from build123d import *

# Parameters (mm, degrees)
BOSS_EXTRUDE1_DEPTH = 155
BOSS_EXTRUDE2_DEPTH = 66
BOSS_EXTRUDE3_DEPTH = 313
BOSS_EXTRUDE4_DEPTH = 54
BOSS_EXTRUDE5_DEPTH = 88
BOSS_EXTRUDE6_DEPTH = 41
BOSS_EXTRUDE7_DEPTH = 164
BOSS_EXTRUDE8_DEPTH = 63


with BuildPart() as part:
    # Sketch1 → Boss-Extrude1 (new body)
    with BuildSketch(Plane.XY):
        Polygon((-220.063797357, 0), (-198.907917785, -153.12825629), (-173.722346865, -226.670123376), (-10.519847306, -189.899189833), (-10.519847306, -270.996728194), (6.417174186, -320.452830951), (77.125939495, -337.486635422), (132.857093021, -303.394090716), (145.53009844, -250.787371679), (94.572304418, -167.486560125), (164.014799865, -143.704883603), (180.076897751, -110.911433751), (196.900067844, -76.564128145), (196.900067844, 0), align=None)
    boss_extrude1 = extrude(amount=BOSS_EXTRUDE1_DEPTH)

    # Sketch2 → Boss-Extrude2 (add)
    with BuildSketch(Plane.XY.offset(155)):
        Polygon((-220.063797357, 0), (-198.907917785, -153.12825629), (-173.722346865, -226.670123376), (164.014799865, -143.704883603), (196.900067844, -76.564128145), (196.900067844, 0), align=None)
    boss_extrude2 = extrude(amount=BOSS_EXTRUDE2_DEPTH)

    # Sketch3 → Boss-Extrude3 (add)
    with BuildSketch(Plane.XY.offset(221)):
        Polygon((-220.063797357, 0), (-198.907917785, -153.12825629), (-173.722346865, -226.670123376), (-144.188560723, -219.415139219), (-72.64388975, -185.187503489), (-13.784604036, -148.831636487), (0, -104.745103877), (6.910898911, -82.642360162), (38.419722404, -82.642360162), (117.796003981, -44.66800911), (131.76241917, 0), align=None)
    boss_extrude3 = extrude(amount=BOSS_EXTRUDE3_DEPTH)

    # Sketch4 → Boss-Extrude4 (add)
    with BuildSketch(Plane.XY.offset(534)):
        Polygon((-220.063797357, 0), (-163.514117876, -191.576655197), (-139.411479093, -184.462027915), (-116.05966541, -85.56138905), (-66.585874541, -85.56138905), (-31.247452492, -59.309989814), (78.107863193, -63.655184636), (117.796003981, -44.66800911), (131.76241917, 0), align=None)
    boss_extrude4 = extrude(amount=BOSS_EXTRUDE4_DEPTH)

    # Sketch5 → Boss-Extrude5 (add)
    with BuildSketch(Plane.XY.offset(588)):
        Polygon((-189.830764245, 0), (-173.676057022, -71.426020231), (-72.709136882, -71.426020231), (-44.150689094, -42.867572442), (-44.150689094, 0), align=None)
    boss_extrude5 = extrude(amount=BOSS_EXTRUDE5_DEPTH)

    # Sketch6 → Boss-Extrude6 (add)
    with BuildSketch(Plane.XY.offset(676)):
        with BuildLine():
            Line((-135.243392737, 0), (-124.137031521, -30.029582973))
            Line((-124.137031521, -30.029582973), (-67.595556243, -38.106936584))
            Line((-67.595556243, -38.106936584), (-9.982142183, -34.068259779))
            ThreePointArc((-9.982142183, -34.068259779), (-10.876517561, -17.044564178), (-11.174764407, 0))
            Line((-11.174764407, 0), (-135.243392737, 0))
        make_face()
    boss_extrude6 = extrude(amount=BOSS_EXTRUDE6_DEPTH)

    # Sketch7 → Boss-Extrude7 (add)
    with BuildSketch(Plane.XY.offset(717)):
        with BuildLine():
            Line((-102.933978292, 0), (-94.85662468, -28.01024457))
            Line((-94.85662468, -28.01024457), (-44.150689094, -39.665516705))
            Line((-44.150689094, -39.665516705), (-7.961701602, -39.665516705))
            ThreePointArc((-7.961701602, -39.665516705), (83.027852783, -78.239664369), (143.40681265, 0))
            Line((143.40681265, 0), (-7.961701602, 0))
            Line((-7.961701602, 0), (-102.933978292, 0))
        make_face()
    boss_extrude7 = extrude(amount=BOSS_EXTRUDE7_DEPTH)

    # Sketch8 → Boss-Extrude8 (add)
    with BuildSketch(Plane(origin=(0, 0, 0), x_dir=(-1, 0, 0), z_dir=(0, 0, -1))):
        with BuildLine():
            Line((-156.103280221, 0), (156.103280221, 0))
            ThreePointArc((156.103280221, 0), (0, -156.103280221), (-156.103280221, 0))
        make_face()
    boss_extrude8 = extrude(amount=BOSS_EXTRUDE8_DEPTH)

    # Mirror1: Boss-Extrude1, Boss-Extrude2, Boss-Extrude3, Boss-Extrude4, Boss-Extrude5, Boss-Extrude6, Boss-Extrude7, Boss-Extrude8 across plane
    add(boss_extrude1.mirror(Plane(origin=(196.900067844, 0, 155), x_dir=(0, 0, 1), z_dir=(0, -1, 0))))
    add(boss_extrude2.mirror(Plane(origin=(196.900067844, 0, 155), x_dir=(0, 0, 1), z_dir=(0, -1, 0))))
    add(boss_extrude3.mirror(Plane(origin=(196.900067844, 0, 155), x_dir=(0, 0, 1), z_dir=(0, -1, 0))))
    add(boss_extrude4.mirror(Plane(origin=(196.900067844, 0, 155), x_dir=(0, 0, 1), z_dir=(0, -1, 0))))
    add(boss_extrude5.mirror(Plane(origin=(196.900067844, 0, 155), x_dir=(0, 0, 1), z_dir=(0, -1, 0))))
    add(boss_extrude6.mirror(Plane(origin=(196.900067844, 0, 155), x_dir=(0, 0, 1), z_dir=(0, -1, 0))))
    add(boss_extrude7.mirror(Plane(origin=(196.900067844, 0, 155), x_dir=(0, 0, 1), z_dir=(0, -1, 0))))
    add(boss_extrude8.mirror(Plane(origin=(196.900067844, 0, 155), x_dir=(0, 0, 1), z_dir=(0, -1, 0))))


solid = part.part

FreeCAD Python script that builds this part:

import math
import FreeCAD as App
import Part
import Sketcher

V = App.Vector
Q = App.Units.Quantity

doc = App.newDocument("Part")
body = doc.addObject("PartDesign::Body", "Body")

# Sketch on XY plane
sketch1 = doc.addObject("Sketcher::SketchObject", "Sketch")
body.addObject(sketch1)
sketch1.AttachmentSupport = (doc.XY_Plane, [""])
sketch1.MapMode = "FlatFace"
sketch1.addGeometry([
    Part.LineSegment(V(-220.063797, 0, 0), V(-198.907918, -153.128256, 0)),  # 0
    Part.LineSegment(V(-198.907918, -153.128256, 0), V(-173.722347, -226.670123, 0)),  # 1
    Part.LineSegment(V(-173.722347, -226.670123, 0), V(-10.519847, -189.89919, 0)),  # 2
    Part.LineSegment(V(-10.519847, -189.89919, 0), V(-10.519847, -270.996728, 0)),  # 3
    Part.LineSegment(V(-10.519847, -270.996728, 0), V(6.417174, -320.452831, 0)),  # 4
    Part.LineSegment(V(6.417174, -320.452831, 0), V(77.125939, -337.486635, 0)),  # 5
    Part.LineSegment(V(77.125939, -337.486635, 0), V(132.857093, -303.394091, 0)),  # 6
    Part.LineSegment(V(132.857093, -303.394091, 0), V(145.530098, -250.787372, 0)),  # 7
    Part.LineSegment(V(145.530098, -250.787372, 0), V(94.572304, -167.48656, 0)),  # 8
    Part.LineSegment(V(94.572304, -167.48656, 0), V(164.0148, -143.704884, 0)),  # 9
    Part.LineSegment(V(164.0148, -143.704884, 0), V(180.076898, -110.911434, 0)),  # 10
    Part.LineSegment(V(180.076898, -110.911434, 0), V(196.900068, -76.564128, 0)),  # 11
    Part.LineSegment(V(196.900068, -76.564128, 0), V(196.900068, 0, 0)),  # 12
    Part.LineSegment(V(196.900068, 0, 0), V(-220.063797, 0, 0)),  # 13
], False)
sketch1.addConstraint([
    Sketcher.Constraint("Coincident", 0, 2, 1, 1),
    Sketcher.Constraint("Coincident", 1, 2, 2, 1),
    Sketcher.Constraint("Coincident", 2, 2, 3, 1),
    Sketcher.Constraint("Coincident", 3, 2, 4, 1),
    Sketcher.Constraint("Coincident", 4, 2, 5, 1),
    Sketcher.Constraint("Coincident", 5, 2, 6, 1),
    Sketcher.Constraint("Coincident", 6, 2, 7, 1),
    Sketcher.Constraint("Coincident", 7, 2, 8, 1),
    Sketcher.Constraint("Coincident", 8, 2, 9, 1),
    Sketcher.Constraint("Coincident", 9, 2, 10, 1),
    Sketcher.Constraint("Coincident", 10, 2, 11, 1),
    Sketcher.Constraint("Coincident", 11, 2, 12, 1),
    Sketcher.Constraint("Coincident", 12, 2, 13, 1),
    Sketcher.Constraint("Coincident", 13, 2, 0, 1),
    Sketcher.Constraint("Vertical", 3),
    Sketcher.Constraint("Vertical", 12),
    Sketcher.Constraint("Horizontal", 13),
    Sketcher.Constraint("PointOnObject", 12, 2, -1),
    Sketcher.Constraint("Distance", 11, Q("38.245999 mm")),
    Sketcher.Constraint("DistanceY", 3, 2, 3, 1, Q("81.097538 mm")),
    Sketcher.Constraint("DistanceY", 12, 1, 12, 2, Q("76.564128 mm")),
    Sketcher.Constraint("DistanceX", -1, 1, 7, 2, Q("145.530098 mm")),
    Sketcher.Constraint("DistanceX", -1, 1, 9, 2, Q("164.0148 mm")),
    Sketcher.Constraint("DistanceX", 1, 2, 2, 2, Q("163.2025 mm")),
    Sketcher.Constraint("DistanceY", 6, 2, 2, 2, Q("113.494901 mm")),
    Sketcher.Constraint("DistanceX", 7, 2, 10, 2, Q("34.546799 mm")),
    Sketcher.Constraint("DistanceX", 13, 2, 8, 2, Q("314.636102 mm")),
    Sketcher.Constraint("Distance", 1, Q("77.734929 mm")),
    Sketcher.Constraint("Distance", 4, Q("52.275891 mm")),
    Sketcher.Constraint("Distance", 5, Q("72.731561 mm")),
    Sketcher.Constraint("Distance", 7, Q("54.111662 mm")),
    Sketcher.Constraint("Distance", 8, Q("97.651021 mm")),
    Sketcher.Constraint("Distance", 10, Q("36.515768 mm")),
    Sketcher.Constraint("DistanceX", 13, 2, 13, 1, Q("416.963865 mm")),
    Sketcher.Constraint("DistanceY", 2, 2, -1, 1, Q("189.89919 mm")),
    Sketcher.Constraint("DistanceY", 4, 2, -1, 1, Q("320.452831 mm")),
    Sketcher.Constraint("DistanceX", -1, 1, 5, 2, Q("77.125939 mm")),
    Sketcher.Constraint("DistanceY", 7, 2, -1, 1, Q("250.787372 mm")),
    Sketcher.Constraint("DistanceY", 8, 2, -1, 1, Q("167.48656 mm")),
    Sketcher.Constraint("DistanceX", 0, 2, 1, 2, Q("25.185571 mm")),
    Sketcher.Constraint("DistanceY", 3, 2, 0, 2, Q("117.868472 mm")),
    Sketcher.Constraint("DistanceY", 5, 2, 0, 2, Q("184.358379 mm")),
])
pad1 = doc.addObject("PartDesign::Pad", "Pad")
body.addObject(pad1)
pad1.Profile = sketch1
pad1.Length = 155

# Sketch on XY plane
sketch2 = doc.addObject("Sketcher::SketchObject", "Sketch001")
body.addObject(sketch2)
sketch2.AttachmentSupport = (doc.XY_Plane, [""])
sketch2.MapMode = "FlatFace"
sketch2.AttachmentOffset = App.Placement(V(0, 0, 155), App.Rotation())
sketch2.addGeometry([
    Part.LineSegment(V(-220, 0, 0), V(-199, -153, 0)),  # 0
    Part.LineSegment(V(-199, -153, 0), V(-174, -227, 0)),  # 1
    Part.LineSegment(V(-174, -227, 0), V(164, -144, 0)),  # 2
    Part.LineSegment(V(164, -144, 0), V(197, -77, 0)),  # 3
    Part.LineSegment(V(197, -77, 0), V(197, 0, 0)),  # 4
    Part.LineSegment(V(197, 0, 0), V(-220, 0, 0)),  # 5
], False)
sketch2.addConstraint([
    Sketcher.Constraint("Coincident", 0, 2, 1, 1),
    Sketcher.Constraint("Coincident", 1, 2, 2, 1),
    Sketcher.Constraint("Coincident", 2, 2, 3, 1),
    Sketcher.Constraint("Coincident", 3, 2, 4, 1),
    Sketcher.Constraint("Coincident", 4, 2, 5, 1),
    Sketcher.Constraint("Coincident", 5, 2, 0, 1),
    Sketcher.Constraint("Vertical", 4),
    Sketcher.Constraint("Horizontal", 5),
    Sketcher.Constraint("PointOnObject", 4, 2, -1),
    Sketcher.Constraint("DistanceY", 4, 1, 4, 2, Q("76.564128 mm")),
    Sketcher.Constraint("DistanceX", -1, 1, 2, 2, Q("164.0148 mm")),
    Sketcher.Constraint("Distance", 1, Q("77.734929 mm")),
    Sketcher.Constraint("DistanceX", 5, 2, 5, 1, Q("416.963865 mm")),
    Sketcher.Constraint("DistanceX", 0, 2, 1, 2, Q("25.185571 mm")),
    Sketcher.Constraint("DistanceY", 1, 2, 2, 2, Q("82.96524 mm")),
    Sketcher.Constraint("DistanceY", 0, 2, 3, 2, Q("76.564128 mm")),
    Sketcher.Constraint("DistanceX", 5, 2, 0, 2, Q("21.15588 mm")),
    Sketcher.Constraint("Distance", 2, Q("347.778106 mm")),
])
pad2 = doc.addObject("PartDesign::Pad", "Pad001")
body.addObject(pad2)
pad2.Profile = sketch2
pad2.Length = 66

# Sketch on XY plane
sketch3 = doc.addObject("Sketcher::SketchObject", "Sketch002")
body.addObject(sketch3)
sketch3.AttachmentSupport = (doc.XY_Plane, [""])
sketch3.MapMode = "FlatFace"
sketch3.AttachmentOffset = App.Placement(V(0, 0, 221), App.Rotation())
sketch3.addGeometry([
    Part.LineSegment(V(-220, 0, 0), V(-199, -153, 0)),  # 0
    Part.LineSegment(V(-199, -153, 0), V(-174, -227, 0)),  # 1
    Part.LineSegment(V(-174, -227, 0), V(-144, -219, 0)),  # 2
    Part.LineSegment(V(-144, -219, 0), V(-73, -185, 0)),  # 3
    Part.LineSegment(V(-73, -185, 0), V(-14, -149, 0)),  # 4
    Part.LineSegment(V(-14, -149, 0), V(0, -105, 0)),  # 5
    Part.LineSegment(V(0, -105, 0), V(7, -83, 0)),  # 6
    Part.LineSegment(V(7, -83, 0), V(38, -83, 0)),  # 7
    Part.LineSegment(V(38, -83, 0), V(118, -45, 0)),  # 8
    Part.LineSegment(V(118, -45, 0), V(132, 0, 0)),  # 9
    Part.LineSegment(V(132, 0, 0), V(-220, 0, 0)),  # 10
], False)
sketch3.addConstraint([
    Sketcher.Constraint("Coincident", 0, 2, 1, 1),
    Sketcher.Constraint("Coincident", 1, 2, 2, 1),
    Sketcher.Constraint("Coincident", 2, 2, 3, 1),
    Sketcher.Constraint("Coincident", 3, 2, 4, 1),
    Sketcher.Constraint("Coincident", 4, 2, 5, 1),
    Sketcher.Constraint("Coincident", 5, 2, 6, 1),
    Sketcher.Constraint("Coincident", 6, 2, 7, 1),
    Sketcher.Constraint("Coincident", 7, 2, 8, 1),
    Sketcher.Constraint("Coincident", 8, 2, 9, 1),
    Sketcher.Constraint("Coincident", 9, 2, 10, 1),
    Sketcher.Constraint("Coincident", 10, 2, 0, 1),
    Sketcher.Constraint("Horizontal", 7),
    Sketcher.Constraint("Horizontal", 10),
    Sketcher.Constraint("PointOnObject", 5, 2, -2),
    Sketcher.Constraint("PointOnObject", 9, 2, -1),
    Sketcher.Constraint("Parallel", 5, 6),
    Sketcher.Constraint("Parallel", 3, 8),
    Sketcher.Constraint("Parallel", 6, 9),
    Sketcher.Constraint("Distance", 3, Q("79.310598 mm")),
    Sketcher.Constraint("DistanceX", -1, 1, 6, 2, Q("6.910899 mm")),
    Sketcher.Constraint("DistanceY", 3, 2, 5, 2, Q("80.4424 mm")),
    Sketcher.Constraint("Distance", 1, Q("77.734929 mm")),
    Sketcher.Constraint("Distance", 2, Q("30.411829 mm")),
    Sketcher.Constraint("Distance", 4, Q("69.182112 mm")),
    Sketcher.Constraint("DistanceX", 7, 1, 7, 2, Q("31.508823 mm")),
    Sketcher.Constraint("DistanceX", 10, 2, 10, 1, Q("351.826217 mm")),
    Sketcher.Constraint("DistanceX", 2, 2, -1, 1, Q("144.188561 mm")),
    Sketcher.Constraint("DistanceY", 2, 2, -1, 1, Q("219.415139 mm")),
    Sketcher.Constraint("DistanceX", 3, 2, -1, 1, Q("72.64389 mm")),
    Sketcher.Constraint("DistanceY", 6, 2, -1, 1, Q("82.64236 mm")),
    Sketcher.Constraint("DistanceY", 8, 2, -1, 1, Q("44.668009 mm")),
    Sketcher.Constraint("DistanceX", 0, 2, 1, 2, Q("25.185571 mm")),
    Sketcher.Constraint("DistanceY", 1, 2, 3, 2, Q("41.48262 mm")),
])
pad3 = doc.addObject("PartDesign::Pad", "Pad002")
body.addObject(pad3)
pad3.Profile = sketch3
pad3.Length = 313

# Sketch on XY plane
sketch4 = doc.addObject("Sketcher::SketchObject", "Sketch003")
body.addObject(sketch4)
sketch4.AttachmentSupport = (doc.XY_Plane, [""])
sketch4.MapMode = "FlatFace"
sketch4.AttachmentOffset = App.Placement(V(0, 0, 534), App.Rotation())
sketch4.addGeometry([
    Part.LineSegment(V(-220.063797, 0, 0), V(-163.514118, -191.576655, 0)),  # 0
    Part.LineSegment(V(-163.514118, -191.576655, 0), V(-139.411479, -184.462028, 0)),  # 1
    Part.LineSegment(V(-139.411479, -184.462028, 0), V(-116.059665, -85.561389, 0)),  # 2
    Part.LineSegment(V(-116.059665, -85.561389, 0), V(-66.585875, -85.561389, 0)),  # 3
    Part.LineSegment(V(-66.585875, -85.561389, 0), V(-31.247452, -59.30999, 0)),  # 4
    Part.LineSegment(V(-31.247452, -59.30999, 0), V(78.107863, -63.655185, 0)),  # 5
    Part.LineSegment(V(78.107863, -63.655185, 0), V(117.796004, -44.668009, 0)),  # 6
    Part.LineSegment(V(117.796004, -44.668009, 0), V(131.762419, 0, 0)),  # 7
    Part.LineSegment(V(131.762419, 0, 0), V(-220.063797, 0, 0)),  # 8
], False)
sketch4.addConstraint([
    Sketcher.Constraint("Coincident", 0, 2, 1, 1),
    Sketcher.Constraint("Coincident", 1, 2, 2, 1),
    Sketcher.Constraint("Coincident", 2, 2, 3, 1),
    Sketcher.Constraint("Coincident", 3, 2, 4, 1),
    Sketcher.Constraint("Coincident", 4, 2, 5, 1),
    Sketcher.Constraint("Coincident", 5, 2, 6, 1),
    Sketcher.Constraint("Coincident", 6, 2, 7, 1),
    Sketcher.Constraint("Coincident", 7, 2, 8, 1),
    Sketcher.Constraint("Coincident", 8, 2, 0, 1),
    Sketcher.Constraint("Horizontal", 3),
    Sketcher.Constraint("Horizontal", 8),
    Sketcher.Constraint("PointOnObject", 7, 2, -1),
    Sketcher.Constraint("Perpendicular", 0, 1),
    Sketcher.Constraint("DistanceX", 3, 1, 3, 2, Q("49.473791 mm")),
    Sketcher.Constraint("DistanceY", 3, 2, 4, 2, Q("26.251399 mm")),
    Sketcher.Constraint("Distance", 1, Q("25.13076 mm")),
    Sketcher.Constraint("Distance", 4, Q("44.02204 mm")),
    Sketcher.Constraint("Distance", 5, Q("109.441609 mm")),
    Sketcher.Constraint("Distance", 6, Q("43.996152 mm")),
    Sketcher.Constraint("DistanceX", 8, 2, 8, 1, Q("351.826217 mm")),
    Sketcher.Constraint("DistanceX", 1, 2, -1, 1, Q("139.411479 mm")),
    Sketcher.Constraint("DistanceY", 2, 2, -1, 1, Q("85.561389 mm")),
    Sketcher.Constraint("DistanceY", 6, 2, -1, 1, Q("44.668009 mm")),
    Sketcher.Constraint("DistanceX", -1, 1, 7, 2, Q("131.762419 mm")),
    Sketcher.Constraint("DistanceX", 0, 2, 1, 2, Q("24.102639 mm")),
    Sketcher.Constraint("DistanceX", 2, 2, 5, 2, Q("194.167529 mm")),
    Sketcher.Constraint("DistanceX", 0, 2, 5, 2, Q("241.621981 mm")),
])
pad4 = doc.addObject("PartDesign::Pad", "Pad003")
body.addObject(pad4)
pad4.Profile = sketch4
pad4.Length = 54

# Sketch on XY plane
sketch5 = doc.addObject("Sketcher::SketchObject", "Sketch004")
body.addObject(sketch5)
sketch5.AttachmentSupport = (doc.XY_Plane, [""])
sketch5.MapMode = "FlatFace"
sketch5.AttachmentOffset = App.Placement(V(0, 0, 588), App.Rotation())
sketch5.addGeometry([
    Part.LineSegment(V(-190, 0, 0), V(-174, -71, 0)),  # 0
    Part.LineSegment(V(-174, -71, 0), V(-73, -71, 0)),  # 1
    Part.LineSegment(V(-73, -71, 0), V(-44, -43, 0)),  # 2
    Part.LineSegment(V(-44, -43, 0), V(-44, 0, 0)),  # 3
    Part.LineSegment(V(-44, 0, 0), V(-190, 0, 0)),  # 4
], False)
sketch5.addConstraint([
    Sketcher.Constraint("Coincident", 0, 2, 1, 1),
    Sketcher.Constraint("Coincident", 1, 2, 2, 1),
    Sketcher.Constraint("Coincident", 2, 2, 3, 1),
    Sketcher.Constraint("Coincident", 3, 2, 4, 1),
    Sketcher.Constraint("Coincident", 4, 2, 0, 1),
    Sketcher.Constraint("Horizontal", 1),
    Sketcher.Constraint("Vertical", 3),
    Sketcher.Constraint("Horizontal", 4),
    Sketcher.Constraint("PointOnObject", 3, 2, -1),
    Sketcher.Constraint("Angle", 2, Q("45 deg")),
    Sketcher.Constraint("DistanceX", 1, 1, 1, 2, Q("100.96692 mm")),
    Sketcher.Constraint("DistanceX", 4, 2, 4, 1, Q("145.680075 mm")),
    Sketcher.Constraint("DistanceY", 3, 1, 3, 2, Q("42.867572 mm")),
    Sketcher.Constraint("DistanceY", 0, 2, -1, 1, Q("71.42602 mm")),
    Sketcher.Constraint("DistanceX", 2, 2, -1, 1, Q("44.150689 mm")),
])
pad5 = doc.addObject("PartDesign::Pad", "Pad004")
body.addObject(pad5)
pad5.Profile = sketch5
pad5.Length = 88

# Sketch on XY plane
sketch6 = doc.addObject("Sketcher::SketchObject", "Sketch005")
body.addObject(sketch6)
sketch6.AttachmentSupport = (doc.XY_Plane, [""])
sketch6.MapMode = "FlatFace"
sketch6.AttachmentOffset = App.Placement(V(0, 0, 676), App.Rotation())
sketch6.addGeometry([
    Part.LineSegment(V(-135, 0, 0), V(-124, -30, 0)),  # 0
    Part.LineSegment(V(-124, -30, 0), V(-68, -38, 0)),  # 1
    Part.LineSegment(V(-68, -38, 0), V(-10, -34, 0)),  # 2
    Part.ArcOfCircle(Part.Circle(V(476, 0, 0), V(0, 0, 1), 487), math.radians(-180), math.radians(-175.99)),  # 3
    Part.LineSegment(V(-11, 0, 0), V(-135, 0, 0)),  # 4
], False)
sketch6.addConstraint([
    Sketcher.Constraint("Coincident", 0, 2, 1, 1),
    Sketcher.Constraint("Coincident", 1, 2, 2, 1),
    Sketcher.Constraint("Coincident", 2, 2, 3, 2),
    Sketcher.Constraint("Coincident", 3, 1, 4, 1),
    Sketcher.Constraint("Coincident", 4, 2, 0, 1),
    Sketcher.Constraint("Horizontal", 4),
    Sketcher.Constraint("PointOnObject", 3, 3, -1),
    Sketcher.Constraint("PointOnObject", 4, 2, -1),
    Sketcher.Constraint("Radius", 3, Q("487.190599 mm")),
    Sketcher.Constraint("DistanceX", 4, 2, 4, 1, Q("124.068628 mm")),
    Sketcher.Constraint("DistanceX", 0, 2, -1, 1, Q("124.137032 mm")),
    Sketcher.Constraint("DistanceY", 2, 2, -1, 1, Q("34.06826 mm")),
    Sketcher.Constraint("DistanceX", 1, 2, 3, 3, Q("543.611391 mm")),
    Sketcher.Constraint("DistanceX", 0, 2, 2, 2, Q("114.154889 mm")),
    Sketcher.Constraint("Distance", 0, Q("32.017606 mm")),
    Sketcher.Constraint("Distance", 1, Q("57.115515 mm")),
])
pad6 = doc.addObject("PartDesign::Pad", "Pad005")
body.addObject(pad6)
pad6.Profile = sketch6
pad6.Length = 41

# Sketch on XY plane
sketch7 = doc.addObject("Sketcher::SketchObject", "Sketch006")
body.addObject(sketch7)
sketch7.AttachmentSupport = (doc.XY_Plane, [""])
sketch7.MapMode = "FlatFace"
sketch7.AttachmentOffset = App.Placement(V(0, 0, 717), App.Rotation())
sketch7.addGeometry([
    Part.LineSegment(V(-103, 0, 0), V(-95, -28, 0)),  # 0
    Part.LineSegment(V(-95, -28, 0), V(-44, -40, 0)),  # 1
    Part.LineSegment(V(-44, -40, 0), V(-8, -40, 0)),  # 2
    Part.ArcOfCircle(Part.Circle(V(63, 0, 0), V(0, 0, 1), 81), math.radians(-151), math.radians(0)),  # 3
    Part.LineSegment(V(143, 0, 0), V(-103, 0, 0)),  # 4
], False)
sketch7.addConstraint([
    Sketcher.Constraint("Coincident", 0, 2, 1, 1),
    Sketcher.Constraint("Coincident", 1, 2, 2, 1),
    Sketcher.Constraint("Coincident", 2, 2, 3, 1),
    Sketcher.Constraint("Coincident", 3, 2, 4, 1),
    Sketcher.Constraint("Coincident", 4, 2, 0, 1),
    Sketcher.Constraint("Horizontal", 2),
    Sketcher.Constraint("Horizontal", 4),
    Sketcher.Constraint("PointOnObject", 3, 3, -1),
    Sketcher.Constraint("PointOnObject", 3, 2, -1),
    Sketcher.Constraint("Radius", 3, Q("80.881353 mm")),
    Sketcher.Constraint("DistanceX", 4, 2, 4, 1, Q("246.340791 mm")),
    Sketcher.Constraint("DistanceX", 2, 2, -1, 1, Q("7.961702 mm")),
    Sketcher.Constraint("DistanceX", 1, 2, 3, 2, Q("187.557502 mm")),
    Sketcher.Constraint("Distance", 0, Q("29.151628 mm")),
    Sketcher.Constraint("DistanceX", 2, 1, 2, 2, Q("36.188987 mm")),
    Sketcher.Constraint("Distance", 1, Q("52.028235 mm")),
])
pad7 = doc.addObject("PartDesign::Pad", "Pad006")
body.addObject(pad7)
pad7.Profile = sketch7
pad7.Length = 164

# Sketch on XY plane
sketch8 = doc.addObject("Sketcher::SketchObject", "Sketch007")
body.addObject(sketch8)
sketch8.AttachmentSupport = (doc.XY_Plane, [""])
sketch8.MapMode = "FlatFace"
sketch8.addGeometry([
    Part.LineSegment(V(-156, 0, 0), V(156, 0, 0)),
    Part.ArcOfCircle(Part.Circle(V(0, 0, 0), V(0, 0, 1), 156), math.radians(180), math.radians(360)),
], False)
sketch8.addConstraint([
    Sketcher.Constraint("Coincident", 0, 1, 1, 1),
    Sketcher.Constraint("Coincident", 1, 2, 0, 2),
    Sketcher.Constraint("Horizontal", 0),
    Sketcher.Constraint("Coincident", 1, 3, -1, 1),
    Sketcher.Constraint("PointOnObject", 0, 1, -1),
    Sketcher.Constraint("Radius", 1, Q("156.10328 mm")),
])
pad8 = doc.addObject("PartDesign::Pad", "Pad007")
body.addObject(pad8)
pad8.Profile = sketch8
pad8.Length = 63
pad8.Reversed = True
doc.recompute()

mirrored = doc.addObject("PartDesign::Mirrored", "Mirrored")
body.addObject(mirrored)
mirrored.Originals = [pad1, pad2, pad3, pad4, pad5, pad6, pad7, pad8]
mirrored.MirrorPlane = (doc.XZ_Plane, [""])
body.Tip = mirrored

doc.recompute()
